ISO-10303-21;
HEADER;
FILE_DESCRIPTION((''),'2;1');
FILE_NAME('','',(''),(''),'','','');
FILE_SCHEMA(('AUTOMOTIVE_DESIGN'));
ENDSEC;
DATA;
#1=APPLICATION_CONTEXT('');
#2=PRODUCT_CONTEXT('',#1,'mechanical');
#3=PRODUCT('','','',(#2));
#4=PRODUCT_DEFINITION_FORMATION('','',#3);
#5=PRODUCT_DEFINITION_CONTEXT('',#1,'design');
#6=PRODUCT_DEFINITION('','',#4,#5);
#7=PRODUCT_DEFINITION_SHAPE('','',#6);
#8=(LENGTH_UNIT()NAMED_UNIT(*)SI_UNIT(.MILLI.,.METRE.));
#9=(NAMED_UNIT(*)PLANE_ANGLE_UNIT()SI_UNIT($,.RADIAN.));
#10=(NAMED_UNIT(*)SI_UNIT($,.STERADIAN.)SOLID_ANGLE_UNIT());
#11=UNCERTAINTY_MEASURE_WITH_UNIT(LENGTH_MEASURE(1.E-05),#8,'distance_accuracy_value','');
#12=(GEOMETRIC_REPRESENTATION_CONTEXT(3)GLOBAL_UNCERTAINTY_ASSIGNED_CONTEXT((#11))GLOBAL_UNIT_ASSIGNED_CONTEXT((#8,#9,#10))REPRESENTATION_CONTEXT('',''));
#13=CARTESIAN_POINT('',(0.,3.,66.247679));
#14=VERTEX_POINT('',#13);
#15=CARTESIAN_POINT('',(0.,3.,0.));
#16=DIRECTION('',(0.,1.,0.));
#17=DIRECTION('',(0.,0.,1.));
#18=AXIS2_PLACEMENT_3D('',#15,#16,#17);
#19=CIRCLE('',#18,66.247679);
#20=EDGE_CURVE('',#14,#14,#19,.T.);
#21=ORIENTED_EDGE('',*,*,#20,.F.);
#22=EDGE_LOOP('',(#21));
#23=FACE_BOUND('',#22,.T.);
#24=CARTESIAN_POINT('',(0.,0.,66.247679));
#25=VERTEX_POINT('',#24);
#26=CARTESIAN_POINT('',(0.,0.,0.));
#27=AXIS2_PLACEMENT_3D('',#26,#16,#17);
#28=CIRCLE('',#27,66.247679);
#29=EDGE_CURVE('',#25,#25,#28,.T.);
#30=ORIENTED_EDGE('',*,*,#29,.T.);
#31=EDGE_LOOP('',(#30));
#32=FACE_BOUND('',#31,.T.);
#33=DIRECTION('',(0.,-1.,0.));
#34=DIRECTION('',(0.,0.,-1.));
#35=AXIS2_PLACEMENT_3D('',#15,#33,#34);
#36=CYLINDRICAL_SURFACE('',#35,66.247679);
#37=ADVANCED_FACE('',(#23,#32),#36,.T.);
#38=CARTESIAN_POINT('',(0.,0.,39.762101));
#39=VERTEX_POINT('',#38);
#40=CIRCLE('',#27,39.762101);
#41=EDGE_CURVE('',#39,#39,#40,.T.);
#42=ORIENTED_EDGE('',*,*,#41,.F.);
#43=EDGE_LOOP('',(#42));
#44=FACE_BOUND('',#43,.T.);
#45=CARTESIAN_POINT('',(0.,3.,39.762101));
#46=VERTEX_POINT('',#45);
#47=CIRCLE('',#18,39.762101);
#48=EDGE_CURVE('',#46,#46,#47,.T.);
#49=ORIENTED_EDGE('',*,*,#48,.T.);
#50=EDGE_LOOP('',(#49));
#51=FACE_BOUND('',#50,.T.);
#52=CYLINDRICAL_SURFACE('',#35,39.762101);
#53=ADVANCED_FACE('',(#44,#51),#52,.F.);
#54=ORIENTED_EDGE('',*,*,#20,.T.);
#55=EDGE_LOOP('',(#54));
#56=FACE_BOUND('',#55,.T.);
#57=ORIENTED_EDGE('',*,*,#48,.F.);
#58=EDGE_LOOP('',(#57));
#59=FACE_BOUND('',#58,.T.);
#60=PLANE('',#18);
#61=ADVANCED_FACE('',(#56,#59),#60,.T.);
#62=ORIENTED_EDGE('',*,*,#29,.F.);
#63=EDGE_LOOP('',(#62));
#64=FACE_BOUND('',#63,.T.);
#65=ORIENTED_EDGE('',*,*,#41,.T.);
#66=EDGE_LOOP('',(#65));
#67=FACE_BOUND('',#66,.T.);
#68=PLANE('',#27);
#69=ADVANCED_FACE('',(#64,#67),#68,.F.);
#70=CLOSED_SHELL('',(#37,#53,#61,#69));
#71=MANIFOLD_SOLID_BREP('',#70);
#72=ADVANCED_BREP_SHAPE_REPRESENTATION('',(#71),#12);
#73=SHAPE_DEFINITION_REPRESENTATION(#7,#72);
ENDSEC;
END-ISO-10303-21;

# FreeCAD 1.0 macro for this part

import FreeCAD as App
import Part
import Sketcher
Q = App.Units.Quantity

doc = App.newDocument("Part")
params = doc.addObject("Spreadsheet::Sheet", "Params")
for row, (alias, value) in enumerate([
    ("pad1_length", "3 mm"),
], start=1):
    params.set(f"A{row}", alias)
    params.set(f"B{row}", "=" + value)
    params.setAlias(f"B{row}", alias)

body = doc.addObject("PartDesign::Body", "Body")

# Sketch on XZ plane
sketch1 = doc.addObject("Sketcher::SketchObject", "Sketch")
body.addObject(sketch1)
sketch1.AttachmentSupport = (doc.XZ_Plane, [""])
sketch1.MapMode = "FlatFace"
sketch1.addGeometry([
    Part.Circle(App.Vector(0, 0, 0), App.Vector(0, 0, 1), 66.247679),
    Part.Circle(App.Vector(0, 0, 0), App.Vector(0, 0, 1), 39.762101),
], False)
sketch1.addConstraint([
    Sketcher.Constraint("Coincident", 0, 3, -1, 1),
    Sketcher.Constraint("Coincident", 1, 3, -1, 1),
    Sketcher.Constraint("Diameter", 1, Q("79.524201 mm")),
    Sketcher.Constraint("Diameter", 0, Q("132.495358 mm")),
])
pad1 = doc.addObject("PartDesign::Pad", "Pad")
body.addObject(pad1)
pad1.Profile = sketch1
pad1.setExpression("Length", "Params.pad1_length")
pad1.Reversed = True

doc.recompute()
